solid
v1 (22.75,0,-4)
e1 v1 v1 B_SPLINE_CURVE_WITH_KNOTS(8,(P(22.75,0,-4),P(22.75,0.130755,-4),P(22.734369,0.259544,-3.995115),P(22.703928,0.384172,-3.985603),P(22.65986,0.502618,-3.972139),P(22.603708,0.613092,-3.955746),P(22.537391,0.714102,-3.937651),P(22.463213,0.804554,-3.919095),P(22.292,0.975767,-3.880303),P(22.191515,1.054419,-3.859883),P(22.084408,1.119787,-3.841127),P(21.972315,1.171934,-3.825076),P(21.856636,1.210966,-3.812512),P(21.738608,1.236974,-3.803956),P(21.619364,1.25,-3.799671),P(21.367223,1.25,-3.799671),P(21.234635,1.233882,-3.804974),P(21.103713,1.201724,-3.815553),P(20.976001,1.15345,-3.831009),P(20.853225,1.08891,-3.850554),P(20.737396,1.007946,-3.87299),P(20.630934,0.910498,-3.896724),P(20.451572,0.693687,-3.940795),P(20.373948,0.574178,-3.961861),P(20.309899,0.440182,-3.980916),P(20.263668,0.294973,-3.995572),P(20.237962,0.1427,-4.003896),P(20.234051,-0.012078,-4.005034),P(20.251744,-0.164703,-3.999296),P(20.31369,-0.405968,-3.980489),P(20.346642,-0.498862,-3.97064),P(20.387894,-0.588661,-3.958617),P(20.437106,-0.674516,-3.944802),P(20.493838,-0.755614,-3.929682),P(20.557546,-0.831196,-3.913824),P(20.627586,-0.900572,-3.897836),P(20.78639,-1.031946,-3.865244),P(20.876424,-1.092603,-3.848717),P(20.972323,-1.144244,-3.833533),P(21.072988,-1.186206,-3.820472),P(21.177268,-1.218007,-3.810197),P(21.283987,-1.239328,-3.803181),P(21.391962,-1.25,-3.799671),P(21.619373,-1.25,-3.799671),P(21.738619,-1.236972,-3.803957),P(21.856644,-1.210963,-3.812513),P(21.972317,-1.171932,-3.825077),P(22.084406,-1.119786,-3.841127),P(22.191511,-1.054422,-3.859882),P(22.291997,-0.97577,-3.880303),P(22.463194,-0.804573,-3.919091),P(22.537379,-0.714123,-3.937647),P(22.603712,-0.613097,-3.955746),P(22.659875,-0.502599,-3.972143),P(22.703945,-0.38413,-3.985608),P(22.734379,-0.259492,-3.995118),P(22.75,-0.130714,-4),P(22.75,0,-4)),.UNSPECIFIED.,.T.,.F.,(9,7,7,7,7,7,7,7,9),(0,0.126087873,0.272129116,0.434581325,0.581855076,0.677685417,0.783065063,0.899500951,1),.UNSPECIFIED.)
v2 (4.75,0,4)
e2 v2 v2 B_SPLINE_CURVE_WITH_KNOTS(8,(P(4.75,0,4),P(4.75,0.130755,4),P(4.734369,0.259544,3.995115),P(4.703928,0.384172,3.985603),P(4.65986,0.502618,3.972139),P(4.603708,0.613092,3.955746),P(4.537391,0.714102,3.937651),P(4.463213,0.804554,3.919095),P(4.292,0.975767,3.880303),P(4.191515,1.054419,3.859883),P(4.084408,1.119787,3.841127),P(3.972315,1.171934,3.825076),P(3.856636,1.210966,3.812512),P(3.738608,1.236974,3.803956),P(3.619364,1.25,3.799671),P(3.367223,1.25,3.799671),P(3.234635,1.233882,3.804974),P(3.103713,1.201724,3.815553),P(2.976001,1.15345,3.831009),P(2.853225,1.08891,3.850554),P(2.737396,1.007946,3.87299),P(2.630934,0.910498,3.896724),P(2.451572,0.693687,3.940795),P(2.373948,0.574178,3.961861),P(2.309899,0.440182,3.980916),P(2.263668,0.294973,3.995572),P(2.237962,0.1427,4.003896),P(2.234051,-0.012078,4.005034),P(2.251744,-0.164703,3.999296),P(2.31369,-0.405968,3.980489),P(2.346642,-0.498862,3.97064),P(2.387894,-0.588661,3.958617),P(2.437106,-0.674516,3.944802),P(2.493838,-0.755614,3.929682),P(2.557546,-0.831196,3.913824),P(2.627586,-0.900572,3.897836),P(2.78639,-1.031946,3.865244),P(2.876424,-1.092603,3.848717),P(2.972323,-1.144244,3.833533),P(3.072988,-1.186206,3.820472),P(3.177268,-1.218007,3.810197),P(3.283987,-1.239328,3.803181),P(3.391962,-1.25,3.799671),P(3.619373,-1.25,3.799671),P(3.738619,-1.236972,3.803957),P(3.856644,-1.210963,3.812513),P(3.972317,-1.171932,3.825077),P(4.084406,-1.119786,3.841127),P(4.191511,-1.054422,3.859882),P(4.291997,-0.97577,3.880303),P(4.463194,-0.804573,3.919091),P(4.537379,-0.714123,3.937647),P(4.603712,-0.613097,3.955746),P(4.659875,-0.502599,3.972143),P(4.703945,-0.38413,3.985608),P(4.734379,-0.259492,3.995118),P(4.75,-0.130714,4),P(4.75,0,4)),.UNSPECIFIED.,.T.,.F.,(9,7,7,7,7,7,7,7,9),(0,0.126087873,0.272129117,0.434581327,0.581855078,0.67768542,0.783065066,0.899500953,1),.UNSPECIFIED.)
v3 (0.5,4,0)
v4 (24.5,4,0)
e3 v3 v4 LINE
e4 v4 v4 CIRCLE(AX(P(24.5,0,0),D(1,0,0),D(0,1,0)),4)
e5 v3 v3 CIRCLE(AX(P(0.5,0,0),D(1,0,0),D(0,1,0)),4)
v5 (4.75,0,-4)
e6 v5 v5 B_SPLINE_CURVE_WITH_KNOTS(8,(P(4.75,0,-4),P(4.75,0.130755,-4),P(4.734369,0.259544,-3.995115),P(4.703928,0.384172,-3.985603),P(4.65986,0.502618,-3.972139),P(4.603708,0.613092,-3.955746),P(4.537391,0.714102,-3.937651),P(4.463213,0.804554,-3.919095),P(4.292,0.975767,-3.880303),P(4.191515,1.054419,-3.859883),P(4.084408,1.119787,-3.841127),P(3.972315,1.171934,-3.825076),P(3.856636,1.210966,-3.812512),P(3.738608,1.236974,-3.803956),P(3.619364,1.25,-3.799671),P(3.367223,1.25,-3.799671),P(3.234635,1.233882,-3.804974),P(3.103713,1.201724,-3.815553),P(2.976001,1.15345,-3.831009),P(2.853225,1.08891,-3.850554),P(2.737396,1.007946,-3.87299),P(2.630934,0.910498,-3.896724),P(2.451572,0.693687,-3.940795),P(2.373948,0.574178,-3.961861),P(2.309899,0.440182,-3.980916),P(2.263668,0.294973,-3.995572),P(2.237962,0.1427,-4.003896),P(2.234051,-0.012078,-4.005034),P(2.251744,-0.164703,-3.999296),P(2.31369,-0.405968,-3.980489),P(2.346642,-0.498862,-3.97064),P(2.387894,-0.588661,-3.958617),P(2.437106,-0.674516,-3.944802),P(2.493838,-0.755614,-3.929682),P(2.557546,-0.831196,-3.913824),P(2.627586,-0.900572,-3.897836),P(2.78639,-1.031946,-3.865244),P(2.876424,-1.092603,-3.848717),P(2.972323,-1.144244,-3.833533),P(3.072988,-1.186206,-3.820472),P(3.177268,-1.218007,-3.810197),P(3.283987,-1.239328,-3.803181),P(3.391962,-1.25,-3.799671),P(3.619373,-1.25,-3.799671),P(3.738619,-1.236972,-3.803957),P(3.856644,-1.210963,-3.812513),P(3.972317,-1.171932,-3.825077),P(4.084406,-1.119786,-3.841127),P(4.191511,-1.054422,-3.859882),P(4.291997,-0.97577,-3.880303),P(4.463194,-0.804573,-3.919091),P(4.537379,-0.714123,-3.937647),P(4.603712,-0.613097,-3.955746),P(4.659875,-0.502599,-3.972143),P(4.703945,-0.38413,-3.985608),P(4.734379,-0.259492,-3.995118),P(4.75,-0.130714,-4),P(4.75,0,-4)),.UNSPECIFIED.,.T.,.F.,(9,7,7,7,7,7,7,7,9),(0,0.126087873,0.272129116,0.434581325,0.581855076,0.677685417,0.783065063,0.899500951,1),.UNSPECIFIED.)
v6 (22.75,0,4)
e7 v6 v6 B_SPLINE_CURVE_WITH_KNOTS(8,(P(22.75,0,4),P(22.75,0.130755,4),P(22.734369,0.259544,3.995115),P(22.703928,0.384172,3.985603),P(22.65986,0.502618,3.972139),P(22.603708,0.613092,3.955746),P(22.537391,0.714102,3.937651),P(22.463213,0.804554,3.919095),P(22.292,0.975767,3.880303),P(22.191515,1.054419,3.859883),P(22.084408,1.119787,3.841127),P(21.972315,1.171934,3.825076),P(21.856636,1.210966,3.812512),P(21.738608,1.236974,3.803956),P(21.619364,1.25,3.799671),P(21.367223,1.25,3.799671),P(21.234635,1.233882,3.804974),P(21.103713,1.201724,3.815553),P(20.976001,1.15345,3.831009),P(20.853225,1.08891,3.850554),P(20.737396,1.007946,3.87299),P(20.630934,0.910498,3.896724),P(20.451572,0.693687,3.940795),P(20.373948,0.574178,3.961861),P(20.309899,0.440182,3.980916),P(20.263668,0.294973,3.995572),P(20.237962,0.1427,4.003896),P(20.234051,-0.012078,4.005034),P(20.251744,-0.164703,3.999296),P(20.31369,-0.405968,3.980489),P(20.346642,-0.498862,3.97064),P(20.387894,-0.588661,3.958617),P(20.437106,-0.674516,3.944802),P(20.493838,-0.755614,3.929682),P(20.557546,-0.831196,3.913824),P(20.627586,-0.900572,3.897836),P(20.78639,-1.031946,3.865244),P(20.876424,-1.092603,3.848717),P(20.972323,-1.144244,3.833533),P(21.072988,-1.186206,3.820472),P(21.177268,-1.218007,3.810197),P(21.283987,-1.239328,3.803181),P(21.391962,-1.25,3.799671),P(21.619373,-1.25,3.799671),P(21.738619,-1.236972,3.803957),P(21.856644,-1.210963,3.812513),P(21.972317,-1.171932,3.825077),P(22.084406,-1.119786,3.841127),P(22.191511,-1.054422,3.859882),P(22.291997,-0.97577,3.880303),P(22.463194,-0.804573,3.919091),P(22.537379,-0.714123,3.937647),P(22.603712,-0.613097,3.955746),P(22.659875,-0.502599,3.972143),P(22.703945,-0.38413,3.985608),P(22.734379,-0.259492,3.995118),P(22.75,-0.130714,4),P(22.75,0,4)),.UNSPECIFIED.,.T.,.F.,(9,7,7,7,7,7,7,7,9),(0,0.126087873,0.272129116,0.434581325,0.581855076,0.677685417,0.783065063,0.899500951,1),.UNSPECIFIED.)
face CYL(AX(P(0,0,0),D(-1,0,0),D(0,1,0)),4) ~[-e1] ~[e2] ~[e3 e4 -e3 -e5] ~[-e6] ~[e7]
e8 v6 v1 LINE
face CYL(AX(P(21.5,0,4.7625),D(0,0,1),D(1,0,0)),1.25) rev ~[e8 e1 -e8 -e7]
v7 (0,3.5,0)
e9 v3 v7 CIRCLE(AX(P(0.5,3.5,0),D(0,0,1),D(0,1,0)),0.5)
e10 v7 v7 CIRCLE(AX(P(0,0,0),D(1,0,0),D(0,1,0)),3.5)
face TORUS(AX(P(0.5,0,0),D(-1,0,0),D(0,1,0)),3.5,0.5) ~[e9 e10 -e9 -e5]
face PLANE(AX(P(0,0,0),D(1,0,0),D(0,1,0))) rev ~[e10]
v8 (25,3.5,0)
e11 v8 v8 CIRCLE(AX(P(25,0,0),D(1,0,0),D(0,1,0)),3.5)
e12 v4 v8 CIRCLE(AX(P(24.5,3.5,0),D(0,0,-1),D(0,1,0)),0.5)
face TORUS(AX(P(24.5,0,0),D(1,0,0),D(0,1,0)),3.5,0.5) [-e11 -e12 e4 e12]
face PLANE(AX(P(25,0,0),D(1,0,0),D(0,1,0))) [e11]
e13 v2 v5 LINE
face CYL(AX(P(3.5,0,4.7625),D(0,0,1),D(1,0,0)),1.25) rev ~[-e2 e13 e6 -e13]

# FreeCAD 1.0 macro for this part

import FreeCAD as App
import Part
import Sketcher

V = App.Vector


def edges_at(feature, points):
    """Names of the edges that pass closest to the given points."""
    edges = feature.Shape.Edges
    near = lambda p: min(range(len(edges)), key=lambda i: edges[i].distToShape(Part.Vertex(*p))[0])
    return sorted({f"Edge{near(p) + 1}" for p in points})

doc = App.newDocument("Part")
body = doc.addObject("PartDesign::Body", "Body")

# Sketch on YZ plane
sketch1 = doc.addObject("Sketcher::SketchObject", "Sketch")
body.addObject(sketch1)
sketch1.AttachmentSupport = (doc.YZ_Plane, [""])
sketch1.MapMode = "FlatFace"
sketch1.addGeometry(Part.Circle(V(0, 0, 0), V(0, 0, 1), 4), False)
sketch1.addConstraint([
    Sketcher.Constraint("Coincident", 0, 3, -1, 1),
    Sketcher.Constraint("Diameter", 0, 8.0),
])
pad1 = doc.addObject("PartDesign::Pad", "Pad")
body.addObject(pad1)
pad1.Profile = sketch1
pad1.Length = 25
doc.recompute()

fillet = doc.addObject("PartDesign::Fillet", "Fillet")
body.addObject(fillet)
fillet.Base = (pad1, edges_at(pad1, [(0, -4, 0), (25, -4, 0)]))
fillet.Radius = 0.5

# Sketch on XY plane
sketch2 = doc.addObject("Sketcher::SketchObject", "Sketch001")
body.addObject(sketch2)
sketch2.AttachmentSupport = (doc.XY_Plane, [""])
sketch2.MapMode = "FlatFace"
sketch2.AttachmentOffset = App.Placement(V(0, 0, 4.7625), App.Rotation())
sketch2.addGeometry([
    Part.Circle(V(3.5, 0, 0), V(0, 0, 1), 1.25),
    Part.Circle(V(21.5, 0, 0), V(0, 0, 1), 1.25),
], False)
sketch2.addConstraint([
    Sketcher.Constraint("Equal", 0, 1),
    Sketcher.Constraint("PointOnObject", 0, 3, -1),
    Sketcher.Constraint("PointOnObject", 1, 3, -1),
    Sketcher.Constraint("Diameter", 0, 2.5),
    Sketcher.Constraint("DistanceX", 0, 3, 1, 3, 18.0),
    Sketcher.Constraint("DistanceX", -1, 1, 0, 3, 3.5),
])
pocket1 = doc.addObject("PartDesign::Pocket", "Pocket")
body.addObject(pocket1)
pocket1.Profile = sketch2
pocket1.Length = 25

doc.recompute()
